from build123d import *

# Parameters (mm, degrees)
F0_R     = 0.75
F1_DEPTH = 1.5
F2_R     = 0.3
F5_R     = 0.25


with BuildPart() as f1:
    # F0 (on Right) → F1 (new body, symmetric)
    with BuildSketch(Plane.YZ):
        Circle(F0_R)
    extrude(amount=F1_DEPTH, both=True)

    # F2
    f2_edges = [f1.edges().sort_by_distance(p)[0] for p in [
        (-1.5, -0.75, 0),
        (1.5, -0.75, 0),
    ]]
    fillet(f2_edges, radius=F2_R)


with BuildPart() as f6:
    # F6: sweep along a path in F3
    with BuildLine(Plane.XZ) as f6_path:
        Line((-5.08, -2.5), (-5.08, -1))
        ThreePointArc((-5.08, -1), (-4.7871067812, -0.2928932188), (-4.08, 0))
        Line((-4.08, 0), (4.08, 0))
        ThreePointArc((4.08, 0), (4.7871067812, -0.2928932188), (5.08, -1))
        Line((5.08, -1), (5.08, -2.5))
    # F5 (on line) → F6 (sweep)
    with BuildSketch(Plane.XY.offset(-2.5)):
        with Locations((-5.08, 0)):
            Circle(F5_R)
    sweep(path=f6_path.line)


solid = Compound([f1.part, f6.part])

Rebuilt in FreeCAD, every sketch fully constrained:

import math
import FreeCAD as App
import Part
import Sketcher
from FreeCAD import Vector
Q = App.Units.Quantity


def edges_at(feature, points):
    """Names of the edges that pass closest to the given points."""
    edges = feature.Shape.Edges
    near = lambda p: min(range(len(edges)), key=lambda i: edges[i].distToShape(Part.Vertex(*p))[0])
    return sorted({f"Edge{near(p) + 1}" for p in points})

doc = App.newDocument("Part")
params = doc.addObject("Spreadsheet::Sheet", "Params")
for row, (alias, value) in enumerate([
    ("sketch1_diameter", "1.5 mm"),
    ("pad1_length", "3 mm"),
    ("fillet_radius", "0.3 mm"),
    ("sketch2_diameter", "0.5 mm"),
    ("sketch3_radius", "1 mm"),
    ("sketch3_height", "1.5 mm"),
    ("sketch3_width", "8.16 mm"),
], start=1):
    params.set(f"A{row}", alias)
    params.set(f"B{row}", "=" + value)
    params.setAlias(f"B{row}", alias)

body = doc.addObject("PartDesign::Body", "Body")

sketch1 = body.newObject("Sketcher::SketchObject", "Sketch")
sketch1.AttachmentSupport = (doc.getObject("YZ_Plane"), [""])
sketch1.MapMode = "FlatFace"
sketch1.addGeometry(Part.Circle(Vector(0, 0, 0), Vector(0, 0, 1), 0.8), False)
sketch1.addConstraint([
    Sketcher.Constraint("Coincident", 0, 3, -1, 1),
    Sketcher.Constraint("Diameter", 0, Q("1.5 mm")),
])
sketch1.setExpression("Constraints[1]", "Params.sketch1_diameter")
pad1 = body.newObject("PartDesign::Pad", "Pad")
pad1.Profile = sketch1
pad1.setExpression("Length", "Params.pad1_length")
pad1.Midplane = True
doc.recompute()

fillet = body.newObject("PartDesign::Fillet", "Fillet")
fillet.Base = (pad1, edges_at(pad1, [(-1.5, -0.75, 0), (1.5, -0.75, 0)]))
fillet.setExpression("Radius", "Params.fillet_radius")
body2 = doc.addObject("PartDesign::Body", "Body001")

sketch2 = body2.newObject("Sketcher::SketchObject", "Sketch001")
sketch2.AttachmentSupport = (doc.getObject("XY_Plane001"), [""])
sketch2.MapMode = "FlatFace"
sketch2.AttachmentOffset = App.Placement(Vector(0, 0, -2.5), App.Rotation())
sketch2.addGeometry(Part.Circle(Vector(-5.08, 0, 0), Vector(0, 0, 1), 0.25), False)
sketch2.addConstraint([
    Sketcher.Constraint("PointOnObject", 0, 3, -1),
    Sketcher.Constraint("Diameter", 0, Q("0.5 mm")),
    Sketcher.Constraint("DistanceX", 0, 3, -1, 1, Q("5.08 mm")),
])
sketch2.setExpression("Constraints[1]", "Params.sketch2_diameter")

sketch3 = body2.newObject("Sketcher::SketchObject", "Sketch002")
sketch3.AttachmentSupport = (doc.getObject("XZ_Plane001"), [""])
sketch3.MapMode = "FlatFace"
sketch3.addGeometry([
    Part.LineSegment(Vector(-5.1, -2.5, 0), Vector(-5.1, -1, 0)),
    Part.ArcOfCircle(Part.Circle(Vector(-4.1, -1, 0), Vector(0, 0, 1), 1), math.radians(90), math.radians(180)),
    Part.LineSegment(Vector(-4.1, 0, 0), Vector(4.1, 0, 0)),
    Part.ArcOfCircle(Part.Circle(Vector(4.1, -1, 0), Vector(0, 0, 1), 1), math.radians(0), math.radians(90)),
    Part.LineSegment(Vector(5.1, -1, 0), Vector(5.1, -2.5, 0)),
], False)
sketch3.addConstraint([
    Sketcher.Constraint("Tangent", 0, 2, 1, 2),
    Sketcher.Constraint("Tangent", 1, 1, 2, 1),
    Sketcher.Constraint("Tangent", 2, 2, 3, 2),
    Sketcher.Constraint("Tangent", 3, 1, 4, 1),
    Sketcher.Constraint("Vertical", 0),
    Sketcher.Constraint("Horizontal", 2),
    Sketcher.Constraint("Vertical", 4),
    Sketcher.Constraint("Equal", 1, 3),
    Sketcher.Constraint("Symmetric", 1, 1, 2, 2, -1, 1),
    Sketcher.Constraint("Horizontal", 0, 1, 4, 2),
    Sketcher.Constraint("Radius", 1, Q("1 mm")),
    Sketcher.Constraint("DistanceY", 0, 1, 0, 2, Q("1.5 mm")),
    Sketcher.Constraint("DistanceX", 2, 1, 2, 2, Q("8.16 mm")),
])
sketch3.setExpression("Constraints[10]", "Params.sketch3_radius")
sketch3.setExpression("Constraints[11]", "Params.sketch3_height")
sketch3.setExpression("Constraints[12]", "Params.sketch3_width")
doc.recompute()

additivepipe = body2.newObject("PartDesign::AdditivePipe", "AdditivePipe")
additivepipe.Profile = sketch2
additivepipe.Spine = (sketch3, ["Edge1", "Edge2", "Edge3", "Edge4", "Edge5"])

doc.recompute()
